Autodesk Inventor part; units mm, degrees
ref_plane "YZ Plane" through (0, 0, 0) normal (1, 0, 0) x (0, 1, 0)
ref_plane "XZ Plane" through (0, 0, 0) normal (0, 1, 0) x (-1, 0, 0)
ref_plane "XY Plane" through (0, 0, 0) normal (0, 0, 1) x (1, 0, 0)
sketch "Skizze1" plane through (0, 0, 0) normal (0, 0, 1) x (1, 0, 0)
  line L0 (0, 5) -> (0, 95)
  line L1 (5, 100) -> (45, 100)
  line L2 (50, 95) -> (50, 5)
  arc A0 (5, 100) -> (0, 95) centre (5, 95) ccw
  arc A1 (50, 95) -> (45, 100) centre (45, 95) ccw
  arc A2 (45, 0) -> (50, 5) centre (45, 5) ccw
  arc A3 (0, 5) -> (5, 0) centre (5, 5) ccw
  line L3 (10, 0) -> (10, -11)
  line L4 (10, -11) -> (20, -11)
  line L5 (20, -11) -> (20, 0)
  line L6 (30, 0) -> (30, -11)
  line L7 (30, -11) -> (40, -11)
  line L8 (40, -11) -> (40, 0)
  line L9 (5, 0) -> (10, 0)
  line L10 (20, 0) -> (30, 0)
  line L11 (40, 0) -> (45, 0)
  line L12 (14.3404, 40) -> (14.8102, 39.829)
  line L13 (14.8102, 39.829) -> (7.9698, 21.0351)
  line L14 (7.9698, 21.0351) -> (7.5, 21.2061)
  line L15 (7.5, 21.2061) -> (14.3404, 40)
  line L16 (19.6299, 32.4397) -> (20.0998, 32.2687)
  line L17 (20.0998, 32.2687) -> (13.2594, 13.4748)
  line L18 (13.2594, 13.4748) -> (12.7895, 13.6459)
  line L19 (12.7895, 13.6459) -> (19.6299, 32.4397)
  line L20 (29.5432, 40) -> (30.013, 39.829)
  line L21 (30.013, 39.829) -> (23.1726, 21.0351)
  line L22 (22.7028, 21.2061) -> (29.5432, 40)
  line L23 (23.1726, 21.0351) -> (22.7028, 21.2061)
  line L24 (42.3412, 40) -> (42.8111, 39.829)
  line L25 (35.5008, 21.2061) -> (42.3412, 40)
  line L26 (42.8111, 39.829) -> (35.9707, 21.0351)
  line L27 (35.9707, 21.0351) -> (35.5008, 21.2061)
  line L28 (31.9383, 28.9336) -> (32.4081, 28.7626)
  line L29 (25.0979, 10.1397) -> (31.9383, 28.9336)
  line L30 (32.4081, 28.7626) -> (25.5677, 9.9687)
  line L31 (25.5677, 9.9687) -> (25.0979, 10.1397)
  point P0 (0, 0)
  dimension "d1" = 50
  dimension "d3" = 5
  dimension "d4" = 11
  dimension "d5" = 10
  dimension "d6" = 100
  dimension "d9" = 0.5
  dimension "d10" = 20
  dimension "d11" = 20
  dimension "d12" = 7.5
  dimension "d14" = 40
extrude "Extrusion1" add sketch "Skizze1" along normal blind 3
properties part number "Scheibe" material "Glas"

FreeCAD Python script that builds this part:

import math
import FreeCAD as App
import Part
import Sketcher
from FreeCAD import Vector
Q = App.Units.Quantity

doc = App.newDocument("Part")
params = doc.addObject("Spreadsheet::Sheet", "Params")
for row, (alias, value) in enumerate([
    ("sketch1_radius", "5 mm"),
    ("sketch1_width", "5 mm"),
    ("sketch1_width2", "10 mm"),
    ("sketch1_height", "11 mm"),
    ("sketch1_length", "20 mm"),
    ("pad1_length", "3 mm"),
], start=1):
    params.set(f"A{row}", alias)
    params.set(f"B{row}", "=" + value)
    params.setAlias(f"B{row}", alias)

body = doc.addObject("PartDesign::Body", "Body")

sketch1 = body.newObject("Sketcher::SketchObject", "Sketch")
sketch1.AttachmentSupport = (doc.getObject("XY_Plane"), [""])
sketch1.MapMode = "FlatFace"
sketch1.addGeometry(Part.LineSegment(Vector(0, 95, 0), Vector(0, 5, 0)), False)
sketch1.addGeometry(Part.ArcOfCircle(Part.Circle(Vector(5, 5, 0), Vector(0, 0, 1), 5), math.radians(180), math.radians(270)), False)
sketch1.addGeometry(Part.LineSegment(Vector(5, 0, 0), Vector(10, 0, 0)), False)
sketch1.addGeometry(Part.LineSegment(Vector(10, 0, 0), Vector(10, -11, 0)), False)
sketch1.addGeometry(Part.LineSegment(Vector(10, -11, 0), Vector(20, -11, 0)), False)
sketch1.addGeometry(Part.LineSegment(Vector(20, -11, 0), Vector(20, 0, 0)), False)
sketch1.addGeometry(Part.LineSegment(Vector(20, 0, 0), Vector(30, 0, 0)), False)
sketch1.addGeometry(Part.LineSegment(Vector(30, 0, 0), Vector(30, -11, 0)), False)
sketch1.addGeometry(Part.LineSegment(Vector(30, -11, 0), Vector(40, -11, 0)), False)
sketch1.addGeometry(Part.LineSegment(Vector(40, -11, 0), Vector(40, 0, 0)), False)
sketch1.addGeometry(Part.LineSegment(Vector(40, 0, 0), Vector(45, 0, 0)), False)
sketch1.addGeometry(Part.ArcOfCircle(Part.Circle(Vector(45, 5, 0), Vector(0, 0, 1), 5), math.radians(-90), math.radians(0)), False)
sketch1.addGeometry(Part.LineSegment(Vector(50, 5, 0), Vector(50, 95, 0)), False)
sketch1.addGeometry(Part.ArcOfCircle(Part.Circle(Vector(45, 95, 0), Vector(0, 0, 1), 5), math.radians(0), math.radians(90)), False)
sketch1.addGeometry(Part.LineSegment(Vector(45, 100, 0), Vector(5, 100, 0)), False)
sketch1.addGeometry(Part.ArcOfCircle(Part.Circle(Vector(5, 95, 0), Vector(0, 0, 1), 5), math.radians(90), math.radians(180)), False)
sketch1.addGeometry(Part.LineSegment(Vector(7.5, 21.21, 0), Vector(14.34, 40, 0)), False)
sketch1.addGeometry(Part.LineSegment(Vector(14.34, 40, 0), Vector(14.81, 39.83, 0)), False)
sketch1.addGeometry(Part.LineSegment(Vector(14.81, 39.83, 0), Vector(7.97, 21.04, 0)), False)
sketch1.addGeometry(Part.LineSegment(Vector(7.97, 21.04, 0), Vector(7.5, 21.21, 0)), False)
sketch1.addGeometry(Part.LineSegment(Vector(12.79, 13.65, 0), Vector(19.63, 32.44, 0)), False)
sketch1.addGeometry(Part.LineSegment(Vector(19.63, 32.44, 0), Vector(20.1, 32.27, 0)), False)
sketch1.addGeometry(Part.LineSegment(Vector(20.1, 32.27, 0), Vector(13.26, 13.47, 0)), False)
sketch1.addGeometry(Part.LineSegment(Vector(13.26, 13.47, 0), Vector(12.79, 13.65, 0)), False)
sketch1.addGeometry(Part.LineSegment(Vector(25.1, 10.14, 0), Vector(31.94, 28.93, 0)), False)
sketch1.addGeometry(Part.LineSegment(Vector(31.94, 28.93, 0), Vector(32.41, 28.76, 0)), False)
sketch1.addGeometry(Part.LineSegment(Vector(32.41, 28.76, 0), Vector(25.57, 9.97, 0)), False)
sketch1.addGeometry(Part.LineSegment(Vector(25.57, 9.97, 0), Vector(25.1, 10.14, 0)), False)
sketch1.addGeometry(Part.LineSegment(Vector(22.7, 21.21, 0), Vector(29.54, 40, 0)), False)
sketch1.addGeometry(Part.LineSegment(Vector(29.54, 40, 0), Vector(30.01, 39.83, 0)), False)
sketch1.addGeometry(Part.LineSegment(Vector(30.01, 39.83, 0), Vector(23.17, 21.04, 0)), False)
sketch1.addGeometry(Part.LineSegment(Vector(23.17, 21.04, 0), Vector(22.7, 21.21, 0)), False)
sketch1.addGeometry(Part.LineSegment(Vector(35.5, 21.21, 0), Vector(42.34, 40, 0)), False)
sketch1.addGeometry(Part.LineSegment(Vector(42.34, 40, 0), Vector(42.81, 39.83, 0)), False)
sketch1.addGeometry(Part.LineSegment(Vector(42.81, 39.83, 0), Vector(35.97, 21.04, 0)), False)
sketch1.addGeometry(Part.LineSegment(Vector(35.97, 21.04, 0), Vector(35.5, 21.21, 0)), False)
sketch1.addConstraint(Sketcher.Constraint("Tangent", 0, 2, 1, 1))
sketch1.addConstraint(Sketcher.Constraint("Tangent", 1, 2, 2, 1))
sketch1.addConstraint(Sketcher.Constraint("Coincident", 2, 2, 3, 1))
sketch1.addConstraint(Sketcher.Constraint("Coincident", 3, 2, 4, 1))
sketch1.addConstraint(Sketcher.Constraint("Coincident", 4, 2, 5, 1))
sketch1.addConstraint(Sketcher.Constraint("Coincident", 5, 2, 6, 1))
sketch1.addConstraint(Sketcher.Constraint("Coincident", 6, 2, 7, 1))
sketch1.addConstraint(Sketcher.Constraint("Coincident", 7, 2, 8, 1))
sketch1.addConstraint(Sketcher.Constraint("Coincident", 8, 2, 9, 1))
sketch1.addConstraint(Sketcher.Constraint("Coincident", 9, 2, 10, 1))
sketch1.addConstraint(Sketcher.Constraint("Tangent", 10, 2, 11, 1))
sketch1.addConstraint(Sketcher.Constraint("Tangent", 11, 2, 12, 1))
sketch1.addConstraint(Sketcher.Constraint("Tangent", 12, 2, 13, 1))
sketch1.addConstraint(Sketcher.Constraint("Tangent", 13, 2, 14, 1))
sketch1.addConstraint(Sketcher.Constraint("Tangent", 14, 2, 15, 1))
sketch1.addConstraint(Sketcher.Constraint("Tangent", 15, 2, 0, 1))
sketch1.addConstraint(Sketcher.Constraint("Coincident", 16, 2, 17, 1))
sketch1.addConstraint(Sketcher.Constraint("Coincident", 17, 2, 18, 1))
sketch1.addConstraint(Sketcher.Constraint("Coincident", 18, 2, 19, 1))
sketch1.addConstraint(Sketcher.Constraint("Coincident", 19, 2, 16, 1))
sketch1.addConstraint(Sketcher.Constraint("Coincident", 20, 2, 21, 1))
sketch1.addConstraint(Sketcher.Constraint("Coincident", 21, 2, 22, 1))
sketch1.addConstraint(Sketcher.Constraint("Coincident", 22, 2, 23, 1))
sketch1.addConstraint(Sketcher.Constraint("Coincident", 23, 2, 20, 1))
sketch1.addConstraint(Sketcher.Constraint("Coincident", 24, 2, 25, 1))
sketch1.addConstraint(Sketcher.Constraint("Coincident", 25, 2, 26, 1))
sketch1.addConstraint(Sketcher.Constraint("Coincident", 26, 2, 27, 1))
sketch1.addConstraint(Sketcher.Constraint("Coincident", 27, 2, 24, 1))
sketch1.addConstraint(Sketcher.Constraint("Coincident", 28, 2, 29, 1))
sketch1.addConstraint(Sketcher.Constraint("Coincident", 29, 2, 30, 1))
sketch1.addConstraint(Sketcher.Constraint("Coincident", 30, 2, 31, 1))
sketch1.addConstraint(Sketcher.Constraint("Coincident", 31, 2, 28, 1))
sketch1.addConstraint(Sketcher.Constraint("Coincident", 32, 2, 33, 1))
sketch1.addConstraint(Sketcher.Constraint("Coincident", 33, 2, 34, 1))
sketch1.addConstraint(Sketcher.Constraint("Coincident", 34, 2, 35, 1))
sketch1.addConstraint(Sketcher.Constraint("Coincident", 35, 2, 32, 1))
sketch1.addConstraint(Sketcher.Constraint("Vertical", 0))
sketch1.addConstraint(Sketcher.Constraint("Horizontal", 2))
sketch1.addConstraint(Sketcher.Constraint("Vertical", 3))
sketch1.addConstraint(Sketcher.Constraint("Horizontal", 4))
sketch1.addConstraint(Sketcher.Constraint("Vertical", 5))
sketch1.addConstraint(Sketcher.Constraint("Horizontal", 6))
sketch1.addConstraint(Sketcher.Constraint("Vertical", 7))
sketch1.addConstraint(Sketcher.Constraint("Horizontal", 8))
sketch1.addConstraint(Sketcher.Constraint("Vertical", 9))
sketch1.addConstraint(Sketcher.Constraint("Horizontal", 10))
sketch1.addConstraint(Sketcher.Constraint("Vertical", 12))
sketch1.addConstraint(Sketcher.Constraint("Horizontal", 14))
sketch1.addConstraint(Sketcher.Constraint("Equal", 1, 11))
sketch1.addConstraint(Sketcher.Constraint("Equal", 11, 13))
sketch1.addConstraint(Sketcher.Constraint("Equal", 13, 15))
sketch1.addConstraint(Sketcher.Constraint("PointOnObject", 0, 2, -2))
sketch1.addConstraint(Sketcher.Constraint("PointOnObject", 1, 2, -1))
sketch1.addConstraint(Sketcher.Constraint("PointOnObject", 5, 2, -1))
sketch1.addConstraint(Sketcher.Constraint("PointOnObject", 9, 2, -1))
sketch1.addConstraint(Sketcher.Constraint("Perpendicular", 16, 17))
sketch1.addConstraint(Sketcher.Constraint("Perpendicular", 17, 18))
sketch1.addConstraint(Sketcher.Constraint("Perpendicular", 18, 19))
sketch1.addConstraint(Sketcher.Constraint("Perpendicular", 19, 20))
sketch1.addConstraint(Sketcher.Constraint("Perpendicular", 20, 21))
sketch1.addConstraint(Sketcher.Constraint("Perpendicular", 21, 22))
sketch1.addConstraint(Sketcher.Constraint("Perpendicular", 22, 23))
sketch1.addConstraint(Sketcher.Constraint("Perpendicular", 23, 24))
sketch1.addConstraint(Sketcher.Constraint("Perpendicular", 24, 25))
sketch1.addConstraint(Sketcher.Constraint("Perpendicular", 25, 26))
sketch1.addConstraint(Sketcher.Constraint("Perpendicular", 26, 27))
sketch1.addConstraint(Sketcher.Constraint("Perpendicular", 27, 28))
sketch1.addConstraint(Sketcher.Constraint("Perpendicular", 28, 29))
sketch1.addConstraint(Sketcher.Constraint("Perpendicular", 29, 30))
sketch1.addConstraint(Sketcher.Constraint("Perpendicular", 30, 31))
sketch1.addConstraint(Sketcher.Constraint("Perpendicular", 31, 32))
sketch1.addConstraint(Sketcher.Constraint("Perpendicular", 32, 33))
sketch1.addConstraint(Sketcher.Constraint("Perpendicular", 33, 34))
sketch1.addConstraint(Sketcher.Constraint("Perpendicular", 34, 35))
sketch1.addConstraint(Sketcher.Constraint("Horizontal", 4, 2, 7, 2))
sketch1.addConstraint(Sketcher.Constraint("Horizontal", 16, 2, 28, 2))
sketch1.addConstraint(Sketcher.Constraint("Horizontal", 17, 2, 29, 2))
sketch1.addConstraint(Sketcher.Constraint("Horizontal", 18, 2, 30, 2))
sketch1.addConstraint(Sketcher.Constraint("Horizontal", 28, 2, 32, 2))
sketch1.addConstraint(Sketcher.Constraint("Horizontal", 29, 2, 33, 2))
sketch1.addConstraint(Sketcher.Constraint("Horizontal", 30, 2, 34, 2))
sketch1.addConstraint(Sketcher.Constraint("Equal", 4, 6))
sketch1.addConstraint(Sketcher.Constraint("Equal", 6, 8))
sketch1.addConstraint(Sketcher.Constraint("Equal", 2, 10))
sketch1.addConstraint(Sketcher.Constraint("Equal", 18, 20))
sketch1.addConstraint(Sketcher.Constraint("Equal", 19, 21))
sketch1.addConstraint(Sketcher.Constraint("Equal", 22, 24))
sketch1.addConstraint(Sketcher.Constraint("Equal", 23, 25))
sketch1.addConstraint(Sketcher.Constraint("Radius", 1, 5.0))
sketch1.addConstraint(Sketcher.Constraint("DistanceX", 2, 1, 2, 2, 5.0))
sketch1.addConstraint(Sketcher.Constraint("DistanceX", 4, 1, 4, 2, 10.0))
sketch1.addConstraint(Sketcher.Constraint("DistanceY", 3, 2, 3, 1, 11.0))
sketch1.addConstraint(Sketcher.Constraint("Distance", 16, 20.0))
sketch1.addConstraint(Sketcher.Constraint("DistanceY", -1, 1, 13, 2, 100.0))
sketch1.addConstraint(Sketcher.Constraint("DistanceY", -1, 1, 16, 2, 40.0))
sketch1.addConstraint(Sketcher.Constraint("Distance", 17, 0.5))
sketch1.addConstraint(Sketcher.Constraint("DistanceX", -1, 1, 19, 2, 7.5))
sketch1.addConstraint(Sketcher.Constraint("Angle", 16, Q("70 deg")))
sketch1.addConstraint(Sketcher.Constraint("DistanceX", -1, 1, 20, 2, 19.63))
sketch1.addConstraint(Sketcher.Constraint("DistanceY", -1, 1, 23, 2, 13.646))
sketch1.addConstraint(Sketcher.Constraint("DistanceX", -1, 1, 25, 2, 32.408))
sketch1.addConstraint(Sketcher.Constraint("DistanceX", -1, 1, 29, 2, 30.013))
sketch1.addConstraint(Sketcher.Constraint("DistanceX", -1, 1, 33, 2, 42.811))
sketch1.addConstraint(Sketcher.Constraint("DistanceY", 24, 2, 21, 2, 3.335))
sketch1.setExpression("Constraints[88]", "Params.sketch1_radius")
sketch1.setExpression("Constraints[89]", "Params.sketch1_width")
sketch1.setExpression("Constraints[90]", "Params.sketch1_width2")
sketch1.setExpression("Constraints[91]", "Params.sketch1_height")
sketch1.setExpression("Constraints[92]", "Params.sketch1_length")
pad1 = body.newObject("PartDesign::Pad", "Pad")
pad1.Profile = sketch1
pad1.setExpression("Length", "Params.pad1_length")

doc.recompute()
